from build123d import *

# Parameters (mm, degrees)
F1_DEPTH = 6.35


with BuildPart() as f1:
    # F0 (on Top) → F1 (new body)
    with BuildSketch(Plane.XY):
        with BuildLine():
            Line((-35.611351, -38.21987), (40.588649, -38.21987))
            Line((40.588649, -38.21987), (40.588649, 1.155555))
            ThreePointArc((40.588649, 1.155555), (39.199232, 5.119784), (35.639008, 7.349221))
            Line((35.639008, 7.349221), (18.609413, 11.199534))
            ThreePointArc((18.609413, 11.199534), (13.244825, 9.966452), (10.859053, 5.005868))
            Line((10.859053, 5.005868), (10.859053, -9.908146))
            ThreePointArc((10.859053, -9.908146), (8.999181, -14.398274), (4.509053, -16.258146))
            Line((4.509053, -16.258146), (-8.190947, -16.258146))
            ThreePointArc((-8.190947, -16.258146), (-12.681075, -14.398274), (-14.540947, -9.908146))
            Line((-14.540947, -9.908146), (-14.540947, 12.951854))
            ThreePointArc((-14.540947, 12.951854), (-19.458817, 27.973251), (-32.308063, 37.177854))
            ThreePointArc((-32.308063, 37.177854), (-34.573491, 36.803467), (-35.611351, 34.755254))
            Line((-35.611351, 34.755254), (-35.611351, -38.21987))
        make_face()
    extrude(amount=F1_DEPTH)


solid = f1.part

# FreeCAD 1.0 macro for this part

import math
import FreeCAD as App
import Part
import Sketcher

V = App.Vector
Q = App.Units.Quantity

doc = App.newDocument("Part")
body = doc.addObject("PartDesign::Body", "Body")

# Sketch on XY plane
sketch1 = body.newObject("Sketcher::SketchObject", "Sketch")
sketch1.AttachmentSupport = (doc.getObject("XY_Plane"), [""])
sketch1.MapMode = "FlatFace"
sketch1.addGeometry([
    Part.LineSegment(V(-35.611351, -38.21987, 0), V(40.588649, -38.21987, 0)),  # 0
    Part.LineSegment(V(40.588649, -38.21987, 0), V(40.588649, 1.155555, 0)),  # 1
    Part.ArcOfCircle(Part.Circle(V(34.238647, 1.155554, 0), V(0, 0, 1), 6.350002), math.radians(0.000012), math.radians(77.259881)),  # 2
    Part.LineSegment(V(35.639008, 7.349221, 0), V(18.609413, 11.199534, 0)),  # 3
    Part.ArcOfCircle(Part.Circle(V(17.209054, 5.005867, 0), V(0, 0, 1), 6.350001), math.radians(77.259898), math.radians(179.999993)),  # 4
    Part.LineSegment(V(10.859053, 5.005868, 0), V(10.859053, -9.908146, 0)),  # 5
    Part.ArcOfCircle(Part.Circle(V(4.509053, -9.908146, 0), V(0, 0, 1), 6.35), math.radians(-89.999998), math.radians(-0.000002)),  # 6
    Part.LineSegment(V(4.509053, -16.258146, 0), V(-8.190947, -16.258146, 0)),  # 7
    Part.ArcOfCircle(Part.Circle(V(-8.190947, -9.908146, 0), V(0, 0, 1), 6.35), math.radians(-179.999998), math.radians(-90.000002)),  # 8
    Part.LineSegment(V(-14.540947, -9.908146, 0), V(-14.540947, 12.951854, 0)),  # 9
    Part.ArcOfCircle(Part.Circle(V(-39.940945, 12.951855, 0), V(0, 0, 1), 25.399998), math.radians(-0.000003), math.radians(72.511931)),  # 10
    Part.ArcOfCircle(Part.Circle(V(-33.071351, 34.755254, 0), V(0, 0, 1), 2.54), math.radians(72.511923), math.radians(180.000011)),  # 11
    Part.LineSegment(V(-35.611351, 34.755254, 0), V(-35.611351, -38.21987, 0)),  # 12
], False)
sketch1.addConstraint([
    Sketcher.Constraint("Coincident", 0, 2, 1, 1),
    Sketcher.Constraint("Coincident", 1, 2, 2, 1),
    Sketcher.Constraint("Coincident", 2, 2, 3, 1),
    Sketcher.Constraint("Coincident", 3, 2, 4, 1),
    Sketcher.Constraint("Coincident", 4, 2, 5, 1),
    Sketcher.Constraint("Coincident", 5, 2, 6, 2),
    Sketcher.Constraint("Coincident", 6, 1, 7, 1),
    Sketcher.Constraint("Coincident", 7, 2, 8, 2),
    Sketcher.Constraint("Coincident", 8, 1, 9, 1),
    Sketcher.Constraint("Coincident", 9, 2, 10, 1),
    Sketcher.Constraint("Coincident", 10, 2, 11, 1),
    Sketcher.Constraint("Coincident", 11, 2, 12, 1),
    Sketcher.Constraint("Coincident", 12, 2, 0, 1),
    Sketcher.Constraint("Horizontal", 0),
    Sketcher.Constraint("Vertical", 1),
    Sketcher.Constraint("Vertical", 5),
    Sketcher.Constraint("Horizontal", 7),
    Sketcher.Constraint("Vertical", 9),
    Sketcher.Constraint("Vertical", 12),
    Sketcher.Constraint("Radius", 10, Q("0.9999999 in")),
    Sketcher.Constraint("Radius", 11, Q("0.1 in")),
    Sketcher.Constraint("DistanceX", 0, 1, 0, 2, Q("3 in")),
    Sketcher.Constraint("Radius", 2, Q("0.2500001 in")),
    Sketcher.Constraint("Radius", 4, Q("0.25 in")),
    Sketcher.Constraint("Radius", 6, Q("0.25 in")),
    Sketcher.Constraint("Radius", 8, Q("0.25 in")),
    Sketcher.Constraint("DistanceX", 7, 2, 7, 1, Q("0.5 in")),
    Sketcher.Constraint("DistanceY", 9, 1, 9, 2, Q("0.9 in")),
    Sketcher.Constraint("DistanceX", 8, 3, 4, 3, Q("1 in")),
    Sketcher.Constraint("DistanceY", 8, 3, 10, 3, Q("0.9 in")),
    Sketcher.Constraint("DistanceX", 8, 3, 6, 1, Q("0.5 in")),
    Sketcher.Constraint("DistanceY", 8, 3, 9, 2, Q("0.9 in")),
    Sketcher.Constraint("DistanceY", 6, 1, 5, 2, Q("0.25 in")),
    Sketcher.Constraint("DistanceY", 6, 3, 2, 3, Q("11.063699 mm")),
    Sketcher.Constraint("DistanceY", 10, 3, 11, 3, Q("21.803399 mm")),
    Sketcher.Constraint("DistanceY", 6, 3, 1, 2, Q("11.063701 mm")),
    Sketcher.Constraint("DistanceY", 11, 3, 10, 2, Q("2.4226 mm")),
    Sketcher.Constraint("DistanceY", 11, 2, 10, 2, Q("2.4226 mm")),
    Sketcher.Constraint("Distance", 3, Q("17.459439 mm")),
    Sketcher.Constraint("DistanceY", 1, 1, 1, 2, Q("39.375425 mm")),
    Sketcher.Constraint("DistanceY", 5, 2, 5, 1, Q("14.914014 mm")),
    Sketcher.Constraint("DistanceX", 11, 3, -1, 1, Q("33.071351 mm")),
    Sketcher.Constraint("DistanceY", 0, 2, -1, 1, Q("38.21987 mm")),
    Sketcher.Constraint("DistanceY", -1, 1, 2, 2, Q("7.349221 mm")),
    Sketcher.Constraint("DistanceX", 4, 3, 3, 2, Q("1.400359 mm")),
])
pad1 = body.newObject("PartDesign::Pad", "Pad")
pad1.Profile = sketch1
pad1.Length = Q("0.25 in")

doc.recompute()
